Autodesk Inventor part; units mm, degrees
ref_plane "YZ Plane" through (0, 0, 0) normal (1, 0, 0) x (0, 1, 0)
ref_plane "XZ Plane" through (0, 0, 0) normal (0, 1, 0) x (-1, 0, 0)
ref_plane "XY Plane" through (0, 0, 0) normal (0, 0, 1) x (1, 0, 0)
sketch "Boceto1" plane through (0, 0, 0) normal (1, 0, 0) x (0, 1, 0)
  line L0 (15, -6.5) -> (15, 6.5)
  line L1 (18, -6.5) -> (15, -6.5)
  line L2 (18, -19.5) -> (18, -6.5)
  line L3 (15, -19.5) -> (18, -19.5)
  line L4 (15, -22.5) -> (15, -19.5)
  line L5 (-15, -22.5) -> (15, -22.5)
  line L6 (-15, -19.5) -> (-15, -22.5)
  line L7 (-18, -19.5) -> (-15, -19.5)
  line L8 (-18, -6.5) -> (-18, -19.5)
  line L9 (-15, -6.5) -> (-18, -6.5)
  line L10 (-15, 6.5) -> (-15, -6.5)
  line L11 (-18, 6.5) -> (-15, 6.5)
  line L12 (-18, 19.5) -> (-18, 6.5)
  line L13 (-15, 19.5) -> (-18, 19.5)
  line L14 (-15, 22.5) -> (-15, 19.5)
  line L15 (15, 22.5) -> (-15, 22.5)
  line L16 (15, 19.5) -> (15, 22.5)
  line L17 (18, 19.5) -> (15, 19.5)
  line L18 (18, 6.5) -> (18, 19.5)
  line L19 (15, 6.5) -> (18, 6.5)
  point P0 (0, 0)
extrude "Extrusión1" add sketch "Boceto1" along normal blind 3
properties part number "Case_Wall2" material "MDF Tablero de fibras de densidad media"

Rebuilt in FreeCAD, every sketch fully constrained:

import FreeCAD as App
import Part
import Sketcher
from FreeCAD import Vector

doc = App.newDocument("Part")
body = doc.addObject("PartDesign::Body", "Body")

sketch1 = body.newObject("Sketcher::SketchObject", "Sketch")
sketch1.AttachmentSupport = (doc.getObject("YZ_Plane"), [""])
sketch1.MapMode = "FlatFace"
sketch1.addGeometry([
    Part.LineSegment(Vector(18, -6.5, 0), Vector(15, -6.5, 0)),
    Part.LineSegment(Vector(15, -6.5, 0), Vector(15, 6.5, 0)),
    Part.LineSegment(Vector(15, 6.5, 0), Vector(18, 6.5, 0)),
    Part.LineSegment(Vector(18, 6.5, 0), Vector(18, 19.5, 0)),
    Part.LineSegment(Vector(18, 19.5, 0), Vector(15, 19.5, 0)),
    Part.LineSegment(Vector(15, 19.5, 0), Vector(15, 22.5, 0)),
    Part.LineSegment(Vector(15, 22.5, 0), Vector(-15, 22.5, 0)),
    Part.LineSegment(Vector(-15, 22.5, 0), Vector(-15, 19.5, 0)),
    Part.LineSegment(Vector(-15, 19.5, 0), Vector(-18, 19.5, 0)),
    Part.LineSegment(Vector(-18, 19.5, 0), Vector(-18, 6.5, 0)),
    Part.LineSegment(Vector(-18, 6.5, 0), Vector(-15, 6.5, 0)),
    Part.LineSegment(Vector(-15, 6.5, 0), Vector(-15, -6.5, 0)),
    Part.LineSegment(Vector(-15, -6.5, 0), Vector(-18, -6.5, 0)),
    Part.LineSegment(Vector(-18, -6.5, 0), Vector(-18, -19.5, 0)),
    Part.LineSegment(Vector(-18, -19.5, 0), Vector(-15, -19.5, 0)),
    Part.LineSegment(Vector(-15, -19.5, 0), Vector(-15, -22.5, 0)),
    Part.LineSegment(Vector(-15, -22.5, 0), Vector(15, -22.5, 0)),
    Part.LineSegment(Vector(15, -22.5, 0), Vector(15, -19.5, 0)),
    Part.LineSegment(Vector(15, -19.5, 0), Vector(18, -19.5, 0)),
    Part.LineSegment(Vector(18, -19.5, 0), Vector(18, -6.5, 0)),
], False)
sketch1.addConstraint([
    Sketcher.Constraint("Coincident", 0, 2, 1, 1),
    Sketcher.Constraint("Coincident", 1, 2, 2, 1),
    Sketcher.Constraint("Coincident", 2, 2, 3, 1),
    Sketcher.Constraint("Coincident", 3, 2, 4, 1),
    Sketcher.Constraint("Coincident", 4, 2, 5, 1),
    Sketcher.Constraint("Coincident", 5, 2, 6, 1),
    Sketcher.Constraint("Coincident", 6, 2, 7, 1),
    Sketcher.Constraint("Coincident", 7, 2, 8, 1),
    Sketcher.Constraint("Coincident", 8, 2, 9, 1),
    Sketcher.Constraint("Coincident", 9, 2, 10, 1),
    Sketcher.Constraint("Coincident", 10, 2, 11, 1),
    Sketcher.Constraint("Coincident", 11, 2, 12, 1),
    Sketcher.Constraint("Coincident", 12, 2, 13, 1),
    Sketcher.Constraint("Coincident", 13, 2, 14, 1),
    Sketcher.Constraint("Coincident", 14, 2, 15, 1),
    Sketcher.Constraint("Coincident", 15, 2, 16, 1),
    Sketcher.Constraint("Coincident", 16, 2, 17, 1),
    Sketcher.Constraint("Coincident", 17, 2, 18, 1),
    Sketcher.Constraint("Coincident", 18, 2, 19, 1),
    Sketcher.Constraint("Coincident", 19, 2, 0, 1),
    Sketcher.Constraint("Horizontal", 0),
    Sketcher.Constraint("Vertical", 1),
    Sketcher.Constraint("Horizontal", 2),
    Sketcher.Constraint("Vertical", 3),
    Sketcher.Constraint("Horizontal", 4),
    Sketcher.Constraint("Vertical", 5),
    Sketcher.Constraint("Horizontal", 6),
    Sketcher.Constraint("Vertical", 7),
    Sketcher.Constraint("Horizontal", 8),
    Sketcher.Constraint("Vertical", 9),
    Sketcher.Constraint("Horizontal", 10),
    Sketcher.Constraint("Vertical", 11),
    Sketcher.Constraint("Horizontal", 12),
    Sketcher.Constraint("Vertical", 13),
    Sketcher.Constraint("Horizontal", 14),
    Sketcher.Constraint("Vertical", 15),
    Sketcher.Constraint("Horizontal", 16),
    Sketcher.Constraint("Vertical", 17),
    Sketcher.Constraint("Horizontal", 18),
    Sketcher.Constraint("Vertical", 19),
    Sketcher.Constraint("Symmetric", 0, 2, 10, 2, -1, 1),
    Sketcher.Constraint("Symmetric", 2, 2, 12, 2, -1, 1),
    Sketcher.Constraint("Symmetric", 4, 2, 14, 2, -1, 1),
    Sketcher.Constraint("Symmetric", 6, 2, 16, 2, -1, 1),
    Sketcher.Constraint("Symmetric", 8, 2, 18, 2, -1, 1),
    Sketcher.Constraint("Symmetric", 4, 2, 7, 2, -2),
    Sketcher.Constraint("Symmetric", 2, 2, 9, 2, -2),
    Sketcher.Constraint("Vertical", 1, 2, 4, 2),
    Sketcher.Constraint("Equal", 1, 3),
    Sketcher.Constraint("Equal", 18, 5),
    Sketcher.Constraint("DistanceX", 0, 2, 0, 1, 3.0),
    Sketcher.Constraint("DistanceX", 6, 2, 6, 1, 30.0),
    Sketcher.Constraint("DistanceY", 1, 1, 1, 2, 13.0),
])
pad1 = body.newObject("PartDesign::Pad", "Pad")
pad1.Profile = sketch1
pad1.Length = 3

doc.recompute()
